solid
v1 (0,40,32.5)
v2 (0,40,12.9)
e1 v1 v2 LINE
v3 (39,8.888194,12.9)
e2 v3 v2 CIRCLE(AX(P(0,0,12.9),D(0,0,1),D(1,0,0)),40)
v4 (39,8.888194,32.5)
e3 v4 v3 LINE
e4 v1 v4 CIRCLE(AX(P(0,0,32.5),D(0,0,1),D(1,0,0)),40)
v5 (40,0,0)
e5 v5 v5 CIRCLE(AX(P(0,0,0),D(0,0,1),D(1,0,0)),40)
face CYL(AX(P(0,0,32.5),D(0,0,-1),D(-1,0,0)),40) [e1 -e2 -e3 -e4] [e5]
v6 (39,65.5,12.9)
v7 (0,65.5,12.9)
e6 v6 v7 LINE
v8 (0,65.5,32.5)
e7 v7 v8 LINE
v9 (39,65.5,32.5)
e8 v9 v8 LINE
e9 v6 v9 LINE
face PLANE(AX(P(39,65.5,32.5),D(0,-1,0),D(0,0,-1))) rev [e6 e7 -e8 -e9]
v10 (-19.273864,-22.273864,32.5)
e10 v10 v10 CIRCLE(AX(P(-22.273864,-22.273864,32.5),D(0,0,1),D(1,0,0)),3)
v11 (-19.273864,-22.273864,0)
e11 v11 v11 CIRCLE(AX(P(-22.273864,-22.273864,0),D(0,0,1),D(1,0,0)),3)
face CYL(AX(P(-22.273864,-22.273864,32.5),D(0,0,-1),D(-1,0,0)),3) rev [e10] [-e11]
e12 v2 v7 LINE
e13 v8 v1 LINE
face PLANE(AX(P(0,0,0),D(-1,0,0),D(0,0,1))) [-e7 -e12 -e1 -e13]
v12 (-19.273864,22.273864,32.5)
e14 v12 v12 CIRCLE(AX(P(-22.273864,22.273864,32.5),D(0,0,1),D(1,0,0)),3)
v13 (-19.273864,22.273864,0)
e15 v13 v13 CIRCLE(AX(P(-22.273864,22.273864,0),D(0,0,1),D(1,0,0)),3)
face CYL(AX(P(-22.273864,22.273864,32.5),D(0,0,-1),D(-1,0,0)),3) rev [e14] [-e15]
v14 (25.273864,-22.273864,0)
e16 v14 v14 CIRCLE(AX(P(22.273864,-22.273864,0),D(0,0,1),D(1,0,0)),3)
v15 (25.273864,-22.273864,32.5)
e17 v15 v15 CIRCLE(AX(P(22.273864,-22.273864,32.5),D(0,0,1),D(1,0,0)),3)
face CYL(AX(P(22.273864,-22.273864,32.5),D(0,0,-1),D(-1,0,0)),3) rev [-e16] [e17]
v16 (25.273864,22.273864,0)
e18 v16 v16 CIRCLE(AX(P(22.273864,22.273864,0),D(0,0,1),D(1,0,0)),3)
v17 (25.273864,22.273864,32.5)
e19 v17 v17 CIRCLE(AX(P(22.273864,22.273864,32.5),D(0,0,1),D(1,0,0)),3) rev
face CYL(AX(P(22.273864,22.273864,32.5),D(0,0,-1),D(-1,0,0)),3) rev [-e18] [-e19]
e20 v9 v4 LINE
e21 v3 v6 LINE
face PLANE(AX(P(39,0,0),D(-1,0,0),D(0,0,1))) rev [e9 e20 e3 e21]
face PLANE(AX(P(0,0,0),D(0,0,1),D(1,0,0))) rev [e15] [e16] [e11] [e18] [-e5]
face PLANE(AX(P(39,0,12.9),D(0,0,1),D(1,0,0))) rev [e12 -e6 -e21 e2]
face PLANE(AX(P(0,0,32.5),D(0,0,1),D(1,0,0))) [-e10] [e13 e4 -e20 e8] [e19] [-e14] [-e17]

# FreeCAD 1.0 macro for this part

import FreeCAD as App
import Part
import Sketcher

doc = App.newDocument("Part")
body = doc.addObject("PartDesign::Body", "Body")

sketch1 = body.newObject("Sketcher::SketchObject", "Sketch")
sketch1.AttachmentSupport = (doc.getObject("XY_Plane"), [""])
sketch1.MapMode = "FlatFace"
sketch1.addGeometry([
    Part.Circle(App.Vector(0, 0, 0), App.Vector(0, 0, 1), 40),
    Part.Circle(App.Vector(-22.3, -22.3, 0), App.Vector(0, 0, 1), 3),
    Part.Circle(App.Vector(22.3, -22.3, 0), App.Vector(0, 0, 1), 3),
    Part.Circle(App.Vector(-22.3, 22.3, 0), App.Vector(0, 0, 1), 3),
    Part.Circle(App.Vector(22.3, 22.3, 0), App.Vector(0, 0, 1), 3),
], False)
sketch1.addConstraint([
    Sketcher.Constraint("Coincident", 0, 3, -1, 1),
    Sketcher.Constraint("Equal", 1, 2),
    Sketcher.Constraint("Equal", 2, 3),
    Sketcher.Constraint("Equal", 3, 4),
    Sketcher.Constraint("Symmetric", 2, 3, 3, 3, -1, 1),
    Sketcher.Constraint("Symmetric", 1, 3, 4, 3, -1, 1),
    Sketcher.Constraint("Symmetric", 1, 3, 2, 3, -2),
    Sketcher.Constraint("Diameter", 0, 80.0),
    Sketcher.Constraint("Diameter", 1, 6.0),
    Sketcher.Constraint("DistanceX", 1, 3, -1, 1, 22.273864),
    Sketcher.Constraint("DistanceY", 1, 3, -1, 1, 22.273864),
])
pad1 = body.newObject("PartDesign::Pad", "Pad")
pad1.Profile = sketch1
pad1.Length = 32.5

sketch2 = body.newObject("Sketcher::SketchObject", "Sketch001")
sketch2.AttachmentSupport = (doc.getObject("YZ_Plane"), [""])
sketch2.MapMode = "FlatFace"
sketch2.addGeometry([
    Part.LineSegment(App.Vector(66, 32, 0), App.Vector(0, 32, 0)),
    Part.LineSegment(App.Vector(0, 32, 0), App.Vector(0, 13, 0)),
    Part.LineSegment(App.Vector(0, 13, 0), App.Vector(66, 13, 0)),
    Part.LineSegment(App.Vector(66, 13, 0), App.Vector(66, 32, 0)),
], False)
sketch2.addConstraint([
    Sketcher.Constraint("Coincident", 0, 2, 1, 1),
    Sketcher.Constraint("Coincident", 1, 2, 2, 1),
    Sketcher.Constraint("Coincident", 2, 2, 3, 1),
    Sketcher.Constraint("Coincident", 3, 2, 0, 1),
    Sketcher.Constraint("Horizontal", 0),
    Sketcher.Constraint("Vertical", 1),
    Sketcher.Constraint("Horizontal", 2),
    Sketcher.Constraint("Vertical", 3),
    Sketcher.Constraint("PointOnObject", 0, 2, -2),
    Sketcher.Constraint("DistanceX", 0, 2, 0, 1, 65.5),
    Sketcher.Constraint("DistanceY", 1, 2, 1, 1, 19.6),
    Sketcher.Constraint("DistanceY", -1, 1, 0, 2, 32.5),
])
pad2 = body.newObject("PartDesign::Pad", "Pad001")
pad2.Profile = sketch2
pad2.Length = 39

sketch3 = body.newObject("Sketcher::SketchObject", "Sketch002")
sketch3.AttachmentSupport = (doc.getObject("XY_Plane"), [""])
sketch3.MapMode = "FlatFace"
sketch3.addGeometry(Part.Circle(App.Vector(22.3, 22.3, 0), App.Vector(0, 0, 1), 3), False)
sketch3.addConstraint([
    Sketcher.Constraint("Diameter", 0, 6.0),
    Sketcher.Constraint("DistanceX", -1, 1, 0, 3, 22.273864),
    Sketcher.Constraint("DistanceY", -1, 1, 0, 3, 22.273864),
])
pocket1 = body.newObject("PartDesign::Pocket", "Pocket")
pocket1.Profile = sketch3
pocket1.Length = 57
pocket1.Reversed = True

doc.recompute()
